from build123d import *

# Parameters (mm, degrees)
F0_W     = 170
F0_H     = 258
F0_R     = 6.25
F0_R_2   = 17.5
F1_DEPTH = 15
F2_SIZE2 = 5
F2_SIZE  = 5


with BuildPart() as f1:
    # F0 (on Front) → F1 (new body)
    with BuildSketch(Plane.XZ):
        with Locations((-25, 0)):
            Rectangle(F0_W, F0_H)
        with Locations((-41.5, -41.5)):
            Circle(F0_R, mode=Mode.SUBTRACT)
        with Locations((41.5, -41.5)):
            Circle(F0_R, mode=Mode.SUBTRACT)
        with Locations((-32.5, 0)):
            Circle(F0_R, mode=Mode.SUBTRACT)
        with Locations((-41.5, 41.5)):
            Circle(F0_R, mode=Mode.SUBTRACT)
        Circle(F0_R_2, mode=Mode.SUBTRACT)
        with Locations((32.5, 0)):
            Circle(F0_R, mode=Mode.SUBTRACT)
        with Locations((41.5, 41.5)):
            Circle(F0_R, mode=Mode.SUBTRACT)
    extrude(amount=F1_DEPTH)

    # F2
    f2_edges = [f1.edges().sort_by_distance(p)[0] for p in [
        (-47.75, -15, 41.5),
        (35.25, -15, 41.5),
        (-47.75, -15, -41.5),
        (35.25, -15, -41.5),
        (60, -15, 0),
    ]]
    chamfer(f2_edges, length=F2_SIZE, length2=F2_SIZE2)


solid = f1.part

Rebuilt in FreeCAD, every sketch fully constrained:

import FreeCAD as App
import Part
import Sketcher

V = App.Vector


def edges_at(feature, points):
    """Names of the edges that pass closest to the given points."""
    edges = feature.Shape.Edges
    near = lambda p: min(range(len(edges)), key=lambda i: edges[i].distToShape(Part.Vertex(*p))[0])
    return sorted({f"Edge{near(p) + 1}" for p in points})

doc = App.newDocument("Part")
params = doc.addObject("Spreadsheet::Sheet", "Params")
for row, (alias, value) in enumerate([
    ("sketch1_diameter", "35 mm"),
    ("sketch1_diameter2", "12.5 mm"),
    ("sketch1_width", "170 mm"),
    ("sketch1_height", "258 mm"),
    ("pad1_length", "15 mm"),
    ("chamfer_size", "5 mm"),
    ("chamfer_size2", "5 mm"),
], start=1):
    params.set(f"A{row}", alias)
    params.set(f"B{row}", "=" + value)
    params.setAlias(f"B{row}", alias)

body = doc.addObject("PartDesign::Body", "Body")

# Sketch on XZ plane
sketch1 = doc.addObject("Sketcher::SketchObject", "Sketch")
body.addObject(sketch1)
sketch1.AttachmentSupport = (doc.XZ_Plane, [""])
sketch1.MapMode = "FlatFace"
sketch1.addGeometry([
    Part.LineSegment(V(-110, 129, 0), V(-110, -129, 0)),  # 0
    Part.LineSegment(V(-110, -129, 0), V(60, -129, 0)),  # 1
    Part.LineSegment(V(60, -129, 0), V(60, 129, 0)),  # 2
    Part.LineSegment(V(60, 129, 0), V(-110, 129, 0)),  # 3
    Part.Circle(V(-41.5, -41.5, 0), V(0, 0, 1), 6.25),  # 4
    Part.Circle(V(41.5, -41.5, 0), V(0, 0, 1), 6.25),  # 5
    Part.Circle(V(-32.5, 0, 0), V(0, 0, 1), 6.25),  # 6
    Part.Circle(V(-41.5, 41.5, 0), V(0, 0, 1), 6.25),  # 7
    Part.Circle(V(0, 0, 0), V(0, 0, 1), 17.5),  # 8
    Part.Circle(V(32.5, 0, 0), V(0, 0, 1), 6.25),  # 9
    Part.Circle(V(41.5, 41.5, 0), V(0, 0, 1), 6.25),  # 10
], False)
sketch1.addConstraint([
    Sketcher.Constraint("Coincident", 0, 2, 1, 1),
    Sketcher.Constraint("Coincident", 1, 2, 2, 1),
    Sketcher.Constraint("Coincident", 2, 2, 3, 1),
    Sketcher.Constraint("Coincident", 3, 2, 0, 1),
    Sketcher.Constraint("Vertical", 0),
    Sketcher.Constraint("Horizontal", 1),
    Sketcher.Constraint("Vertical", 2),
    Sketcher.Constraint("Horizontal", 3),
    Sketcher.Constraint("Coincident", 8, 3, -1, 1),
    Sketcher.Constraint("Equal", 4, 5),
    Sketcher.Constraint("Equal", 5, 6),
    Sketcher.Constraint("Equal", 6, 7),
    Sketcher.Constraint("Equal", 7, 9),
    Sketcher.Constraint("Equal", 9, 10),
    Sketcher.Constraint("Symmetric", 5, 3, 7, 3, -1, 1),
    Sketcher.Constraint("Symmetric", 6, 3, 9, 3, -1, 1),
    Sketcher.Constraint("Symmetric", 4, 3, 10, 3, -1, 1),
    Sketcher.Constraint("Symmetric", 4, 3, 5, 3, -2),
    Sketcher.Constraint("PointOnObject", 6, 3, -1),
    Sketcher.Constraint("Diameter", 8, 35.0),
    Sketcher.Constraint("Diameter", 4, 12.5),
    Sketcher.Constraint("DistanceX", 1, 1, 1, 2, 170.0),
    Sketcher.Constraint("DistanceY", 0, 2, 0, 1, 258.0),
    Sketcher.Constraint("DistanceX", 0, 2, -1, 1, 110.0),
    Sketcher.Constraint("DistanceY", 0, 2, -1, 1, 129.0),
    Sketcher.Constraint("DistanceX", 4, 3, 5, 3, 83.0),
    Sketcher.Constraint("DistanceX", 4, 3, 6, 3, 9.0),
    Sketcher.Constraint("DistanceY", 4, 3, 7, 3, 83.0),
])
sketch1.setExpression("Constraints[19]", "Params.sketch1_diameter")
sketch1.setExpression("Constraints[20]", "Params.sketch1_diameter2")
sketch1.setExpression("Constraints[21]", "Params.sketch1_width")
sketch1.setExpression("Constraints[22]", "Params.sketch1_height")
pad1 = doc.addObject("PartDesign::Pad", "Pad")
body.addObject(pad1)
pad1.Profile = sketch1
pad1.setExpression("Length", "Params.pad1_length")
doc.recompute()

chamfer = doc.addObject("PartDesign::Chamfer", "Chamfer")
body.addObject(chamfer)
chamfer.Base = (pad1, edges_at(pad1, [
    (-47.75, -15, 41.5),
    (35.25, -15, 41.5),
    (-47.75, -15, -41.5),
    (35.25, -15, -41.5),
    (60, -15, 0),
]))
chamfer.ChamferType = "Two distances"
chamfer.setExpression("Size", "Params.chamfer_size")
chamfer.setExpression("Size2", "Params.chamfer_size2")

doc.recompute()
